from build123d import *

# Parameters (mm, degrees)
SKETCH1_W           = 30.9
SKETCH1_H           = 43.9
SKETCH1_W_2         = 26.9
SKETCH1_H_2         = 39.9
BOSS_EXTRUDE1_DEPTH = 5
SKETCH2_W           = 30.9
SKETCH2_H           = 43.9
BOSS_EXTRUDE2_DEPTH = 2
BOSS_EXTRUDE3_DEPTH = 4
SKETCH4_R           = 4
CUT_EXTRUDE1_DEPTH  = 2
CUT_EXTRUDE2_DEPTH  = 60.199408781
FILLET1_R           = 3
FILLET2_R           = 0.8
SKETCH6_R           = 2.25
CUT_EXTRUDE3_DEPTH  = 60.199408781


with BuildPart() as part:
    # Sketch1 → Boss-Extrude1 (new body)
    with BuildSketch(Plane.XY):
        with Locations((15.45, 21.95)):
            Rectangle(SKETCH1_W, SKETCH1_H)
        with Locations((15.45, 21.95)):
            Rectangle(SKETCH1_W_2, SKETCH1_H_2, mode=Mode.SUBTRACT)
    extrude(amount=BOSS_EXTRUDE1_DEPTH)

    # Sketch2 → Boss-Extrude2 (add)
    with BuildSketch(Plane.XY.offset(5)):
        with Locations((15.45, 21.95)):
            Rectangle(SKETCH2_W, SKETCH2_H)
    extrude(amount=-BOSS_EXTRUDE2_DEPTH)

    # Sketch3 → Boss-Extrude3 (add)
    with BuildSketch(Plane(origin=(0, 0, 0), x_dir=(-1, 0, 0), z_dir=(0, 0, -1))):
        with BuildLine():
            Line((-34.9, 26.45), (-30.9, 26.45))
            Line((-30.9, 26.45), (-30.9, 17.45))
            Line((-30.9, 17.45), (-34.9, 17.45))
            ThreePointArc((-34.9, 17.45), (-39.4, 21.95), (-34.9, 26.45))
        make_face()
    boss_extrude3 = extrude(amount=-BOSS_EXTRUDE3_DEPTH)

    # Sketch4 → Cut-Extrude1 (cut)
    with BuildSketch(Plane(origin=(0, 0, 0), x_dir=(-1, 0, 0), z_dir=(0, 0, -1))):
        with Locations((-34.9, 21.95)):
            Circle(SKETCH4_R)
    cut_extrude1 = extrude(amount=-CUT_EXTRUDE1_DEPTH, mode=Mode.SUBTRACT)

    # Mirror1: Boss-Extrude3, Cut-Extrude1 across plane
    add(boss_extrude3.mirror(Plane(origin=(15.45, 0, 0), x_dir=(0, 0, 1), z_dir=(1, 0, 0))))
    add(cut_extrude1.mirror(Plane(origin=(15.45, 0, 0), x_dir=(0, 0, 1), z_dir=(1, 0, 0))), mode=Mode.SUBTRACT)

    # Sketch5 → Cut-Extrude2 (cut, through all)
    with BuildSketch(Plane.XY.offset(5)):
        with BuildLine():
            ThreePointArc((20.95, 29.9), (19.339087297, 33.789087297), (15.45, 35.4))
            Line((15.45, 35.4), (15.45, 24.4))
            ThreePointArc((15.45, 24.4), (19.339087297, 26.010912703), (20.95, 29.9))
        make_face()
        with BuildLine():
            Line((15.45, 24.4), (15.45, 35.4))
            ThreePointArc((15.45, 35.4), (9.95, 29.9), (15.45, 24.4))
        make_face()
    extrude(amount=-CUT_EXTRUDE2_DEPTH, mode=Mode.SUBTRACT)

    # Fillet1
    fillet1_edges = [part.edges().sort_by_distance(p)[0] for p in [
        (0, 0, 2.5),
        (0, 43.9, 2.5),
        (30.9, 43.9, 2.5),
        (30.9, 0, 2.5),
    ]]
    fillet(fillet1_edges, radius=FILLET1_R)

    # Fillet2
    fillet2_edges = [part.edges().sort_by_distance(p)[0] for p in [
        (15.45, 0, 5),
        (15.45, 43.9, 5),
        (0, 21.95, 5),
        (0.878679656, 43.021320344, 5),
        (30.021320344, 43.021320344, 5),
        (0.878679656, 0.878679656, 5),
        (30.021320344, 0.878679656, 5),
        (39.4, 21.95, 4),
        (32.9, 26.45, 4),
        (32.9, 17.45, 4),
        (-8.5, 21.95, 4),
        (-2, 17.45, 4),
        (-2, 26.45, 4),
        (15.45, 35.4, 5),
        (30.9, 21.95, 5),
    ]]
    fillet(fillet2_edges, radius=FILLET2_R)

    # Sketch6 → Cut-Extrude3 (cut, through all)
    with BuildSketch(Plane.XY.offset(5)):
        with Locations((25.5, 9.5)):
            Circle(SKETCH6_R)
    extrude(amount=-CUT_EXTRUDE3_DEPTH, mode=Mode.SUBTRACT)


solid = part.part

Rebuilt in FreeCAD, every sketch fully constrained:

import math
import FreeCAD as App
import Part
import Sketcher
from FreeCAD import Vector
Q = App.Units.Quantity


def edges_at(feature, points):
    """Names of the edges that pass closest to the given points."""
    edges = feature.Shape.Edges
    near = lambda p: min(range(len(edges)), key=lambda i: edges[i].distToShape(Part.Vertex(*p))[0])
    return sorted({f"Edge{near(p) + 1}" for p in points})


def add_polygon(sketch, points):
    """Adds a closed chain of lines whose ends are joined by coincident constraints."""
    first, n = sketch.GeometryCount, len(points)
    for a, b in zip(points, points[1:] + points[:1]):
        sketch.addGeometry(Part.LineSegment(App.Vector(*a, 0), App.Vector(*b, 0)), False)
    for i in range(n):
        sketch.addConstraint(Sketcher.Constraint("Coincident", first + i, 2, first + (i + 1) % n, 1))

doc = App.newDocument("Part")
params = doc.addObject("Spreadsheet::Sheet", "Params")
for row, (alias, value) in enumerate([
    ("sketch1_width", "30.9 mm"),
    ("sketch1_width2", "26.9 mm"),
    ("sketch1_height", "43.9 mm"),
    ("sketch1_height2", "39.9 mm"),
    ("pad1_length", "5 mm"),
    ("sketch2_width", "30.9 mm"),
    ("sketch2_height", "43.9 mm"),
    ("pad2_length", "2 mm"),
    ("sketch3_radius", "4.5 mm"),
    ("sketch3_width", "4 mm"),
    ("pad3_length", "4 mm"),
    ("sketch4_diameter", "8 mm"),
    ("pocket1_length", "2 mm"),
    ("sketch5_radius", "5.5 mm"),
    ("fillet_radius", "3 mm"),
    ("fillet2_radius", "0.8 mm"),
    ("sketch6_diameter", "4.5 mm"),
], start=1):
    params.set(f"A{row}", alias)
    params.set(f"B{row}", "=" + value)
    params.setAlias(f"B{row}", alias)

body = doc.addObject("PartDesign::Body", "Body")

# Sketch on XY plane
sketch1 = body.newObject("Sketcher::SketchObject", "Sketch")
sketch1.AttachmentSupport = (doc.getObject("XY_Plane"), [""])
sketch1.MapMode = "FlatFace"
add_polygon(sketch1, [(0, 44), (0, 0), (31, 0), (31, 44)])  # lines 0-3
add_polygon(sketch1, [(29, 2), (2, 2), (2, 42), (29, 42)])  # lines 4-7
sketch1.addConstraint(Sketcher.Constraint("Vertical", 0))
sketch1.addConstraint(Sketcher.Constraint("Horizontal", 1))
sketch1.addConstraint(Sketcher.Constraint("Vertical", 2))
sketch1.addConstraint(Sketcher.Constraint("Horizontal", 3))
sketch1.addConstraint(Sketcher.Constraint("Horizontal", 4))
sketch1.addConstraint(Sketcher.Constraint("Vertical", 5))
sketch1.addConstraint(Sketcher.Constraint("Horizontal", 6))
sketch1.addConstraint(Sketcher.Constraint("Vertical", 7))
sketch1.addConstraint(Sketcher.Constraint("Coincident", 0, 2, -1, 1))
sketch1.addConstraint(Sketcher.Constraint("DistanceX", 1, 1, 1, 2, Q("30.9 mm")))
sketch1.addConstraint(Sketcher.Constraint("DistanceX", 4, 2, 4, 1, Q("26.9 mm")))
sketch1.addConstraint(Sketcher.Constraint("DistanceY", 0, 2, 0, 1, Q("43.9 mm")))
sketch1.addConstraint(Sketcher.Constraint("DistanceY", 5, 1, 5, 2, Q("39.9 mm")))
sketch1.addConstraint(Sketcher.Constraint("DistanceX", -1, 1, 4, 2, Q("2 mm")))
sketch1.addConstraint(Sketcher.Constraint("DistanceY", -1, 1, 4, 2, Q("2 mm")))
sketch1.setExpression("Constraints[17]", "Params.sketch1_width")
sketch1.setExpression("Constraints[18]", "Params.sketch1_width2")
sketch1.setExpression("Constraints[19]", "Params.sketch1_height")
sketch1.setExpression("Constraints[20]", "Params.sketch1_height2")
pad1 = body.newObject("PartDesign::Pad", "Pad")
pad1.Profile = sketch1
pad1.setExpression("Length", "Params.pad1_length")

# Sketch on XY plane
sketch2 = body.newObject("Sketcher::SketchObject", "Sketch001")
sketch2.AttachmentSupport = (doc.getObject("XY_Plane"), [""])
sketch2.MapMode = "FlatFace"
sketch2.AttachmentOffset = App.Placement(Vector(0, 0, 5), App.Rotation())
add_polygon(sketch2, [(0, 44), (0, 0), (31, 0), (31, 44)])  # lines 0-3
sketch2.addConstraint(Sketcher.Constraint("Vertical", 0))
sketch2.addConstraint(Sketcher.Constraint("Horizontal", 1))
sketch2.addConstraint(Sketcher.Constraint("Vertical", 2))
sketch2.addConstraint(Sketcher.Constraint("Horizontal", 3))
sketch2.addConstraint(Sketcher.Constraint("Coincident", 0, 2, -1, 1))
sketch2.addConstraint(Sketcher.Constraint("DistanceX", 1, 1, 1, 2, Q("30.9 mm")))
sketch2.addConstraint(Sketcher.Constraint("DistanceY", 0, 2, 0, 1, Q("43.9 mm")))
sketch2.setExpression("Constraints[9]", "Params.sketch2_width")
sketch2.setExpression("Constraints[10]", "Params.sketch2_height")
pad2 = body.newObject("PartDesign::Pad", "Pad001")
pad2.Profile = sketch2
pad2.setExpression("Length", "Params.pad2_length")
pad2.Reversed = True

# Sketch on XY plane
sketch3 = body.newObject("Sketcher::SketchObject", "Sketch002")
sketch3.AttachmentSupport = (doc.getObject("XY_Plane"), [""])
sketch3.MapMode = "FlatFace"
sketch3.addGeometry(Part.LineSegment(Vector(30.9, 26.4, 0), Vector(34.9, 26.4, 0)), False)
sketch3.addGeometry(Part.ArcOfCircle(Part.Circle(Vector(34.9, 21.9, 0), Vector(0, 0, 1), 4.5), math.radians(-90), math.radians(90)), False)
sketch3.addGeometry(Part.LineSegment(Vector(34.9, 17.4, 0), Vector(30.9, 17.4, 0)), False)
sketch3.addGeometry(Part.LineSegment(Vector(30.9, 17.4, 0), Vector(30.9, 26.4, 0)), False)
sketch3.addConstraint(Sketcher.Constraint("Tangent", 0, 2, 1, 2))
sketch3.addConstraint(Sketcher.Constraint("Tangent", 1, 1, 2, 1))
sketch3.addConstraint(Sketcher.Constraint("Coincident", 2, 2, 3, 1))
sketch3.addConstraint(Sketcher.Constraint("Coincident", 3, 2, 0, 1))
sketch3.addConstraint(Sketcher.Constraint("Horizontal", 0))
sketch3.addConstraint(Sketcher.Constraint("Horizontal", 2))
sketch3.addConstraint(Sketcher.Constraint("Vertical", 3))
sketch3.addConstraint(Sketcher.Constraint("Radius", 1, Q("4.5 mm")))
sketch3.addConstraint(Sketcher.Constraint("DistanceX", 0, 1, 0, 2, Q("4 mm")))
sketch3.addConstraint(Sketcher.Constraint("DistanceX", -1, 1, 1, 3, Q("34.9 mm")))
sketch3.addConstraint(Sketcher.Constraint("DistanceY", -1, 1, 1, 3, Q("21.95 mm")))
sketch3.setExpression("Constraints[7]", "Params.sketch3_radius")
sketch3.setExpression("Constraints[8]", "Params.sketch3_width")
pad3 = body.newObject("PartDesign::Pad", "Pad002")
pad3.Profile = sketch3
pad3.setExpression("Length", "Params.pad3_length")

# Sketch on XY plane
sketch4 = body.newObject("Sketcher::SketchObject", "Sketch003")
sketch4.AttachmentSupport = (doc.getObject("XY_Plane"), [""])
sketch4.MapMode = "FlatFace"
sketch4.addGeometry(Part.Circle(Vector(34.9, 21.9, 0), Vector(0, 0, 1), 4), False)
sketch4.addConstraint(Sketcher.Constraint("Diameter", 0, Q("8 mm")))
sketch4.addConstraint(Sketcher.Constraint("DistanceX", -1, 1, 0, 3, Q("34.9 mm")))
sketch4.addConstraint(Sketcher.Constraint("DistanceY", -1, 1, 0, 3, Q("21.95 mm")))
sketch4.setExpression("Constraints[0]", "Params.sketch4_diameter")
pocket1 = body.newObject("PartDesign::Pocket", "Pocket")
pocket1.Profile = sketch4
pocket1.setExpression("Length", "Params.pocket1_length")
pocket1.Reversed = True
doc.recompute()

datumplane = body.newObject("PartDesign::Plane", "DatumPlane")
datumplane.AttachmentSupport = (doc.getObject("YZ_Plane"), [""])
datumplane.MapMode = "FlatFace"
datumplane.AttachmentOffset = App.Placement(Vector(0, 0, 15.45), App.Rotation())
mirrored = body.newObject("PartDesign::Mirrored", "Mirrored")
mirrored.Originals = [pad3, pocket1]
mirrored.MirrorPlane = (datumplane, [""])
body.Tip = mirrored

# Sketch on XY plane
sketch5 = body.newObject("Sketcher::SketchObject", "Sketch004")
sketch5.AttachmentSupport = (doc.getObject("XY_Plane"), [""])
sketch5.MapMode = "FlatFace"
sketch5.AttachmentOffset = App.Placement(Vector(0, 0, 5), App.Rotation())
sketch5.addGeometry(Part.ArcOfCircle(Part.Circle(Vector(15, 30, 0), Vector(0, 0, 1), 5), math.radians(0), math.radians(90)), False)
sketch5.addGeometry(Part.ArcOfCircle(Part.Circle(Vector(15, 30, 0), Vector(0, 0, 1), 6), math.radians(90), math.radians(270)), False)
sketch5.addGeometry(Part.ArcOfCircle(Part.Circle(Vector(15, 30, 0), Vector(0, 0, 1), 5), math.radians(-90), math.radians(0)), False)
sketch5.addConstraint(Sketcher.Constraint("Tangent", 0, 2, 1, 1))
sketch5.addConstraint(Sketcher.Constraint("Tangent", 1, 2, 2, 1))
sketch5.addConstraint(Sketcher.Constraint("Tangent", 2, 2, 0, 1))
sketch5.addConstraint(Sketcher.Constraint("Horizontal", 1, 3, 2, 2))
sketch5.addConstraint(Sketcher.Constraint("Vertical", 2, 3, 0, 2))
sketch5.addConstraint(Sketcher.Constraint("Vertical", 0, 2, 1, 2))
sketch5.addConstraint(Sketcher.Constraint("Radius", 0, Q("5.5 mm")))
sketch5.addConstraint(Sketcher.Constraint("DistanceY", -1, 1, 0, 3, Q("29.9 mm")))
sketch5.addConstraint(Sketcher.Constraint("DistanceX", -1, 1, 0, 3, Q("15.45 mm")))
sketch5.setExpression("Constraints[6]", "Params.sketch5_radius")
pocket2 = body.newObject("PartDesign::Pocket", "Pocket001")
pocket2.Profile = sketch5
pocket2.Type = "ThroughAll"
doc.recompute()

fillet = body.newObject("PartDesign::Fillet", "Fillet")
fillet.Base = (pocket2, edges_at(pocket2, [
    (0, 0, 2.5),
    (0, 43.9, 2.5),
    (30.9, 43.9, 2.5),
    (30.9, 0, 2.5),
]))
fillet.setExpression("Radius", "Params.fillet_radius")
doc.recompute()

fillet2 = body.newObject("PartDesign::Fillet", "Fillet001")
fillet2.Base = (fillet, edges_at(fillet, [
    (15.45, 0, 5),
    (15.45, 43.9, 5),
    (0, 21.95, 5),
    (0.879, 43.021, 5),
    (30.021, 43.021, 5),
    (0.879, 0.879, 5),
    (30.021, 0.879, 5),
    (39.4, 21.95, 4),
    (32.9, 26.45, 4),
    (32.9, 17.45, 4),
    (-8.5, 21.95, 4),
    (-2, 17.45, 4),
    (-2, 26.45, 4),
    (19.339, 33.789, 5),
    (30.9, 21.95, 5),
]))
fillet2.setExpression("Radius", "Params.fillet2_radius")

# Sketch on XY plane
sketch6 = body.newObject("Sketcher::SketchObject", "Sketch005")
sketch6.AttachmentSupport = (doc.getObject("XY_Plane"), [""])
sketch6.MapMode = "FlatFace"
sketch6.AttachmentOffset = App.Placement(Vector(0, 0, 5), App.Rotation())
sketch6.addGeometry(Part.Circle(Vector(25.5, 9.5, 0), Vector(0, 0, 1), 2.2), False)
sketch6.addConstraint(Sketcher.Constraint("Diameter", 0, Q("4.5 mm")))
sketch6.addConstraint(Sketcher.Constraint("DistanceX", -1, 1, 0, 3, Q("25.5 mm")))
sketch6.addConstraint(Sketcher.Constraint("DistanceY", -1, 1, 0, 3, Q("9.5 mm")))
sketch6.setExpression("Constraints[0]", "Params.sketch6_diameter")
pocket3 = body.newObject("PartDesign::Pocket", "Pocket002")
pocket3.Profile = sketch6
pocket3.Type = "ThroughAll"

doc.recompute()
